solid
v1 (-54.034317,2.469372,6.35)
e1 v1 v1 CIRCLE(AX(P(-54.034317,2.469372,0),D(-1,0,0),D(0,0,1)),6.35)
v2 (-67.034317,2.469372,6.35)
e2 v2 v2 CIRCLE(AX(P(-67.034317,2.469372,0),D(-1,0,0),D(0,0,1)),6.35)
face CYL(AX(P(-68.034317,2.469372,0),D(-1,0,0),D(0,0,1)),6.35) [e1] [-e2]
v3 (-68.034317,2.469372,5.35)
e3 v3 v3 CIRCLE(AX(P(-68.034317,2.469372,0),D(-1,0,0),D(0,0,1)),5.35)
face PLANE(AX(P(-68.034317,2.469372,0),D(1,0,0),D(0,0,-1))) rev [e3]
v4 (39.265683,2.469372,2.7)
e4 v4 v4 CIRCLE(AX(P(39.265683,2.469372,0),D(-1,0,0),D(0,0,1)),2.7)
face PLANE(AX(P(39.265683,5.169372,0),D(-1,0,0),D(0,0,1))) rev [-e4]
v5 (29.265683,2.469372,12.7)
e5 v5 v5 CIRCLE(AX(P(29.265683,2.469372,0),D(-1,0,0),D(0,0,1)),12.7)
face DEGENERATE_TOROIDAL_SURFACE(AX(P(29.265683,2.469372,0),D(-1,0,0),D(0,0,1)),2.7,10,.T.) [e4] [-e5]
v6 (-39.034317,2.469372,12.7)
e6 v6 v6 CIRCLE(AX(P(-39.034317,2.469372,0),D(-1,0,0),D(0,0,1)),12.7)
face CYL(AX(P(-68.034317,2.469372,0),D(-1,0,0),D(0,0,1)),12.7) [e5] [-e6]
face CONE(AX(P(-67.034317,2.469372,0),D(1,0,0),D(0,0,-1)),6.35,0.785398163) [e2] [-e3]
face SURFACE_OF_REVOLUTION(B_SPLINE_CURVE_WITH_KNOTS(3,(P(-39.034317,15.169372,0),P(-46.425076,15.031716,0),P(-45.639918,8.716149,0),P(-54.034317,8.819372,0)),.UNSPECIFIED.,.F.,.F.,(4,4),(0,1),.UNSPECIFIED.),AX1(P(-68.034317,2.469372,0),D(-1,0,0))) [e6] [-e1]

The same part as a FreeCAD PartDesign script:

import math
import FreeCAD as App
import Part
import Sketcher

V = App.Vector

doc = App.newDocument("Part")
body = doc.addObject("PartDesign::Body", "Body")

# Sketch on XY plane
sketch1 = doc.addObject("Sketcher::SketchObject", "Sketch")
body.addObject(sketch1)
sketch1.AttachmentSupport = (doc.XY_Plane, [""])
sketch1.MapMode = "FlatFace"
sketch1.addGeometry([
    Part.LineSegment(V(-54.034317, 8.819372, 0), V(-67.034317, 8.819372, 0)),  # 0
    Part.LineSegment(V(-67.034317, 8.819372, 0), V(-68.034317, 7.819372, 0)),  # 1
    Part.LineSegment(V(-68.034317, 7.819372, 0), V(-68.034317, 2.469372, 0)),  # 2
    Part.LineSegment(V(-68.034317, 2.469372, 0), V(39.265683, 2.469372, 0)),  # 3
    Part.LineSegment(V(39.265683, 2.469372, 0), V(39.265683, 5.169372, 0)),  # 4
    Part.ArcOfCircle(Part.Circle(V(29.265683, 5.169372, 0), V(0, 0, 1), 10), math.radians(0), math.radians(90)),  # 5
    Part.LineSegment(V(29.265683, 15.169372, 0), V(-39.034317, 15.169372, 0)),  # 6
    Part.BSplineCurve([V(-54.034317, 8.819372, 0), V(-45.639918, 8.716149, 0), V(-46.425076, 15.031716, 0), V(-39.034317, 15.169372, 0)], [4, 4], [0, 1], False, 3, [1, 1, 1, 1], False),  # 7
], False)
sketch1.addGeometry(Part.LineSegment(V(-68.034317, 2.469372, 0), V(39.265683, 2.469372, 0)), True)  # axis
sketch1.addConstraint([
    Sketcher.Constraint("Block", 7),
    Sketcher.Constraint("Coincident", 0, 2, 1, 1),
    Sketcher.Constraint("Coincident", 1, 2, 2, 1),
    Sketcher.Constraint("Coincident", 2, 2, 3, 1),
    Sketcher.Constraint("Coincident", 3, 2, 4, 1),
    Sketcher.Constraint("Coincident", 4, 2, 5, 1),
    Sketcher.Constraint("Coincident", 5, 2, 6, 1),
    Sketcher.Constraint("Coincident", 6, 2, 7, 2),
    Sketcher.Constraint("Coincident", 7, 1, 0, 1),
    Sketcher.Constraint("Horizontal", 0),
    Sketcher.Constraint("Vertical", 2),
    Sketcher.Constraint("Horizontal", 3),
    Sketcher.Constraint("Vertical", 4),
    Sketcher.Constraint("Horizontal", 6),
    Sketcher.Constraint("Horizontal", 8),
    Sketcher.Constraint("Coincident", 8, 1, 2, 2),
    Sketcher.Constraint("Radius", 5, 10.0),
    Sketcher.Constraint("DistanceX", 0, 2, 0, 1, 13.0),
    Sketcher.Constraint("DistanceX", 3, 1, 3, 2, 107.3),
    Sketcher.Constraint("DistanceX", 6, 2, 6, 1, 68.3),
    Sketcher.Constraint("DistanceX", 8, 1, 8, 2, 107.3),
    Sketcher.Constraint("DistanceY", 4, 1, 4, 2, 2.7),
    Sketcher.Constraint("DistanceX", 1, 2, 0, 2, 1.0),
    Sketcher.Constraint("DistanceY", 1, 2, 0, 2, 1.0),
    Sketcher.Constraint("DistanceY", 4, 2, 5, 2, 10.0),
])
revolution = doc.addObject("PartDesign::Revolution", "Revolution")
body.addObject(revolution)
revolution.Profile = sketch1
revolution.ReferenceAxis = (sketch1, ["Axis0"])
revolution.Angle = 360

doc.recompute()
